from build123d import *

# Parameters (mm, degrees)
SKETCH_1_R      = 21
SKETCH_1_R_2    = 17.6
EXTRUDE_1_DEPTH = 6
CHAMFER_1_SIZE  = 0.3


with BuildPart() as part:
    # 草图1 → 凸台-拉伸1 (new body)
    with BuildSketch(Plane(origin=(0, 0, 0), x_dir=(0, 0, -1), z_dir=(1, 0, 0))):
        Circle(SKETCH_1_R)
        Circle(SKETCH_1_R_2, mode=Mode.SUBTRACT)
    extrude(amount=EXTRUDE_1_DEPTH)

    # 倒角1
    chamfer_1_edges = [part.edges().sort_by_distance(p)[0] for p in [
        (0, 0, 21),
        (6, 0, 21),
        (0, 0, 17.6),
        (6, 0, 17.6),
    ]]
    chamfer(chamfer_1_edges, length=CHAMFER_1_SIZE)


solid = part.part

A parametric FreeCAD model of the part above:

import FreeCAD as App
import Part
import Sketcher


def edges_at(feature, points):
    """Names of the edges that pass closest to the given points."""
    edges = feature.Shape.Edges
    near = lambda p: min(range(len(edges)), key=lambda i: edges[i].distToShape(Part.Vertex(*p))[0])
    return sorted({f"Edge{near(p) + 1}" for p in points})

doc = App.newDocument("Part")
params = doc.addObject("Spreadsheet::Sheet", "Params")
for row, (alias, value) in enumerate([
    ("sketch1_diameter", "42 mm"),
    ("sketch1_diameter2", "35.2 mm"),
    ("pad1_length", "6 mm"),
    ("chamfer_size", "0.3 mm"),
], start=1):
    params.set(f"A{row}", alias)
    params.set(f"B{row}", "=" + value)
    params.setAlias(f"B{row}", alias)

body = doc.addObject("PartDesign::Body", "Body")

sketch1 = doc.addObject("Sketcher::SketchObject", "Sketch")
body.addObject(sketch1)
sketch1.AttachmentSupport = (doc.YZ_Plane, [""])
sketch1.MapMode = "FlatFace"
sketch1.addGeometry([
    Part.Circle(App.Vector(0, 0, 0), App.Vector(0, 0, 1), 21),
    Part.Circle(App.Vector(0, 0, 0), App.Vector(0, 0, 1), 17.6),
], False)
sketch1.addConstraint([
    Sketcher.Constraint("Coincident", 0, 3, -1, 1),
    Sketcher.Constraint("Coincident", 1, 3, -1, 1),
    Sketcher.Constraint("Diameter", 0, 42.0),
    Sketcher.Constraint("Diameter", 1, 35.2),
])
sketch1.setExpression("Constraints[2]", "Params.sketch1_diameter")
sketch1.setExpression("Constraints[3]", "Params.sketch1_diameter2")
pad1 = doc.addObject("PartDesign::Pad", "Pad")
body.addObject(pad1)
pad1.Profile = sketch1
pad1.setExpression("Length", "Params.pad1_length")
doc.recompute()

chamfer = doc.addObject("PartDesign::Chamfer", "Chamfer")
body.addObject(chamfer)
chamfer.Base = (pad1, edges_at(pad1, [
    (0, 0, 21),
    (6, 0, 21),
    (0, 0, 17.6),
    (6, 0, 17.6),
]))
chamfer.setExpression("Size", "Params.chamfer_size")

doc.recompute()
